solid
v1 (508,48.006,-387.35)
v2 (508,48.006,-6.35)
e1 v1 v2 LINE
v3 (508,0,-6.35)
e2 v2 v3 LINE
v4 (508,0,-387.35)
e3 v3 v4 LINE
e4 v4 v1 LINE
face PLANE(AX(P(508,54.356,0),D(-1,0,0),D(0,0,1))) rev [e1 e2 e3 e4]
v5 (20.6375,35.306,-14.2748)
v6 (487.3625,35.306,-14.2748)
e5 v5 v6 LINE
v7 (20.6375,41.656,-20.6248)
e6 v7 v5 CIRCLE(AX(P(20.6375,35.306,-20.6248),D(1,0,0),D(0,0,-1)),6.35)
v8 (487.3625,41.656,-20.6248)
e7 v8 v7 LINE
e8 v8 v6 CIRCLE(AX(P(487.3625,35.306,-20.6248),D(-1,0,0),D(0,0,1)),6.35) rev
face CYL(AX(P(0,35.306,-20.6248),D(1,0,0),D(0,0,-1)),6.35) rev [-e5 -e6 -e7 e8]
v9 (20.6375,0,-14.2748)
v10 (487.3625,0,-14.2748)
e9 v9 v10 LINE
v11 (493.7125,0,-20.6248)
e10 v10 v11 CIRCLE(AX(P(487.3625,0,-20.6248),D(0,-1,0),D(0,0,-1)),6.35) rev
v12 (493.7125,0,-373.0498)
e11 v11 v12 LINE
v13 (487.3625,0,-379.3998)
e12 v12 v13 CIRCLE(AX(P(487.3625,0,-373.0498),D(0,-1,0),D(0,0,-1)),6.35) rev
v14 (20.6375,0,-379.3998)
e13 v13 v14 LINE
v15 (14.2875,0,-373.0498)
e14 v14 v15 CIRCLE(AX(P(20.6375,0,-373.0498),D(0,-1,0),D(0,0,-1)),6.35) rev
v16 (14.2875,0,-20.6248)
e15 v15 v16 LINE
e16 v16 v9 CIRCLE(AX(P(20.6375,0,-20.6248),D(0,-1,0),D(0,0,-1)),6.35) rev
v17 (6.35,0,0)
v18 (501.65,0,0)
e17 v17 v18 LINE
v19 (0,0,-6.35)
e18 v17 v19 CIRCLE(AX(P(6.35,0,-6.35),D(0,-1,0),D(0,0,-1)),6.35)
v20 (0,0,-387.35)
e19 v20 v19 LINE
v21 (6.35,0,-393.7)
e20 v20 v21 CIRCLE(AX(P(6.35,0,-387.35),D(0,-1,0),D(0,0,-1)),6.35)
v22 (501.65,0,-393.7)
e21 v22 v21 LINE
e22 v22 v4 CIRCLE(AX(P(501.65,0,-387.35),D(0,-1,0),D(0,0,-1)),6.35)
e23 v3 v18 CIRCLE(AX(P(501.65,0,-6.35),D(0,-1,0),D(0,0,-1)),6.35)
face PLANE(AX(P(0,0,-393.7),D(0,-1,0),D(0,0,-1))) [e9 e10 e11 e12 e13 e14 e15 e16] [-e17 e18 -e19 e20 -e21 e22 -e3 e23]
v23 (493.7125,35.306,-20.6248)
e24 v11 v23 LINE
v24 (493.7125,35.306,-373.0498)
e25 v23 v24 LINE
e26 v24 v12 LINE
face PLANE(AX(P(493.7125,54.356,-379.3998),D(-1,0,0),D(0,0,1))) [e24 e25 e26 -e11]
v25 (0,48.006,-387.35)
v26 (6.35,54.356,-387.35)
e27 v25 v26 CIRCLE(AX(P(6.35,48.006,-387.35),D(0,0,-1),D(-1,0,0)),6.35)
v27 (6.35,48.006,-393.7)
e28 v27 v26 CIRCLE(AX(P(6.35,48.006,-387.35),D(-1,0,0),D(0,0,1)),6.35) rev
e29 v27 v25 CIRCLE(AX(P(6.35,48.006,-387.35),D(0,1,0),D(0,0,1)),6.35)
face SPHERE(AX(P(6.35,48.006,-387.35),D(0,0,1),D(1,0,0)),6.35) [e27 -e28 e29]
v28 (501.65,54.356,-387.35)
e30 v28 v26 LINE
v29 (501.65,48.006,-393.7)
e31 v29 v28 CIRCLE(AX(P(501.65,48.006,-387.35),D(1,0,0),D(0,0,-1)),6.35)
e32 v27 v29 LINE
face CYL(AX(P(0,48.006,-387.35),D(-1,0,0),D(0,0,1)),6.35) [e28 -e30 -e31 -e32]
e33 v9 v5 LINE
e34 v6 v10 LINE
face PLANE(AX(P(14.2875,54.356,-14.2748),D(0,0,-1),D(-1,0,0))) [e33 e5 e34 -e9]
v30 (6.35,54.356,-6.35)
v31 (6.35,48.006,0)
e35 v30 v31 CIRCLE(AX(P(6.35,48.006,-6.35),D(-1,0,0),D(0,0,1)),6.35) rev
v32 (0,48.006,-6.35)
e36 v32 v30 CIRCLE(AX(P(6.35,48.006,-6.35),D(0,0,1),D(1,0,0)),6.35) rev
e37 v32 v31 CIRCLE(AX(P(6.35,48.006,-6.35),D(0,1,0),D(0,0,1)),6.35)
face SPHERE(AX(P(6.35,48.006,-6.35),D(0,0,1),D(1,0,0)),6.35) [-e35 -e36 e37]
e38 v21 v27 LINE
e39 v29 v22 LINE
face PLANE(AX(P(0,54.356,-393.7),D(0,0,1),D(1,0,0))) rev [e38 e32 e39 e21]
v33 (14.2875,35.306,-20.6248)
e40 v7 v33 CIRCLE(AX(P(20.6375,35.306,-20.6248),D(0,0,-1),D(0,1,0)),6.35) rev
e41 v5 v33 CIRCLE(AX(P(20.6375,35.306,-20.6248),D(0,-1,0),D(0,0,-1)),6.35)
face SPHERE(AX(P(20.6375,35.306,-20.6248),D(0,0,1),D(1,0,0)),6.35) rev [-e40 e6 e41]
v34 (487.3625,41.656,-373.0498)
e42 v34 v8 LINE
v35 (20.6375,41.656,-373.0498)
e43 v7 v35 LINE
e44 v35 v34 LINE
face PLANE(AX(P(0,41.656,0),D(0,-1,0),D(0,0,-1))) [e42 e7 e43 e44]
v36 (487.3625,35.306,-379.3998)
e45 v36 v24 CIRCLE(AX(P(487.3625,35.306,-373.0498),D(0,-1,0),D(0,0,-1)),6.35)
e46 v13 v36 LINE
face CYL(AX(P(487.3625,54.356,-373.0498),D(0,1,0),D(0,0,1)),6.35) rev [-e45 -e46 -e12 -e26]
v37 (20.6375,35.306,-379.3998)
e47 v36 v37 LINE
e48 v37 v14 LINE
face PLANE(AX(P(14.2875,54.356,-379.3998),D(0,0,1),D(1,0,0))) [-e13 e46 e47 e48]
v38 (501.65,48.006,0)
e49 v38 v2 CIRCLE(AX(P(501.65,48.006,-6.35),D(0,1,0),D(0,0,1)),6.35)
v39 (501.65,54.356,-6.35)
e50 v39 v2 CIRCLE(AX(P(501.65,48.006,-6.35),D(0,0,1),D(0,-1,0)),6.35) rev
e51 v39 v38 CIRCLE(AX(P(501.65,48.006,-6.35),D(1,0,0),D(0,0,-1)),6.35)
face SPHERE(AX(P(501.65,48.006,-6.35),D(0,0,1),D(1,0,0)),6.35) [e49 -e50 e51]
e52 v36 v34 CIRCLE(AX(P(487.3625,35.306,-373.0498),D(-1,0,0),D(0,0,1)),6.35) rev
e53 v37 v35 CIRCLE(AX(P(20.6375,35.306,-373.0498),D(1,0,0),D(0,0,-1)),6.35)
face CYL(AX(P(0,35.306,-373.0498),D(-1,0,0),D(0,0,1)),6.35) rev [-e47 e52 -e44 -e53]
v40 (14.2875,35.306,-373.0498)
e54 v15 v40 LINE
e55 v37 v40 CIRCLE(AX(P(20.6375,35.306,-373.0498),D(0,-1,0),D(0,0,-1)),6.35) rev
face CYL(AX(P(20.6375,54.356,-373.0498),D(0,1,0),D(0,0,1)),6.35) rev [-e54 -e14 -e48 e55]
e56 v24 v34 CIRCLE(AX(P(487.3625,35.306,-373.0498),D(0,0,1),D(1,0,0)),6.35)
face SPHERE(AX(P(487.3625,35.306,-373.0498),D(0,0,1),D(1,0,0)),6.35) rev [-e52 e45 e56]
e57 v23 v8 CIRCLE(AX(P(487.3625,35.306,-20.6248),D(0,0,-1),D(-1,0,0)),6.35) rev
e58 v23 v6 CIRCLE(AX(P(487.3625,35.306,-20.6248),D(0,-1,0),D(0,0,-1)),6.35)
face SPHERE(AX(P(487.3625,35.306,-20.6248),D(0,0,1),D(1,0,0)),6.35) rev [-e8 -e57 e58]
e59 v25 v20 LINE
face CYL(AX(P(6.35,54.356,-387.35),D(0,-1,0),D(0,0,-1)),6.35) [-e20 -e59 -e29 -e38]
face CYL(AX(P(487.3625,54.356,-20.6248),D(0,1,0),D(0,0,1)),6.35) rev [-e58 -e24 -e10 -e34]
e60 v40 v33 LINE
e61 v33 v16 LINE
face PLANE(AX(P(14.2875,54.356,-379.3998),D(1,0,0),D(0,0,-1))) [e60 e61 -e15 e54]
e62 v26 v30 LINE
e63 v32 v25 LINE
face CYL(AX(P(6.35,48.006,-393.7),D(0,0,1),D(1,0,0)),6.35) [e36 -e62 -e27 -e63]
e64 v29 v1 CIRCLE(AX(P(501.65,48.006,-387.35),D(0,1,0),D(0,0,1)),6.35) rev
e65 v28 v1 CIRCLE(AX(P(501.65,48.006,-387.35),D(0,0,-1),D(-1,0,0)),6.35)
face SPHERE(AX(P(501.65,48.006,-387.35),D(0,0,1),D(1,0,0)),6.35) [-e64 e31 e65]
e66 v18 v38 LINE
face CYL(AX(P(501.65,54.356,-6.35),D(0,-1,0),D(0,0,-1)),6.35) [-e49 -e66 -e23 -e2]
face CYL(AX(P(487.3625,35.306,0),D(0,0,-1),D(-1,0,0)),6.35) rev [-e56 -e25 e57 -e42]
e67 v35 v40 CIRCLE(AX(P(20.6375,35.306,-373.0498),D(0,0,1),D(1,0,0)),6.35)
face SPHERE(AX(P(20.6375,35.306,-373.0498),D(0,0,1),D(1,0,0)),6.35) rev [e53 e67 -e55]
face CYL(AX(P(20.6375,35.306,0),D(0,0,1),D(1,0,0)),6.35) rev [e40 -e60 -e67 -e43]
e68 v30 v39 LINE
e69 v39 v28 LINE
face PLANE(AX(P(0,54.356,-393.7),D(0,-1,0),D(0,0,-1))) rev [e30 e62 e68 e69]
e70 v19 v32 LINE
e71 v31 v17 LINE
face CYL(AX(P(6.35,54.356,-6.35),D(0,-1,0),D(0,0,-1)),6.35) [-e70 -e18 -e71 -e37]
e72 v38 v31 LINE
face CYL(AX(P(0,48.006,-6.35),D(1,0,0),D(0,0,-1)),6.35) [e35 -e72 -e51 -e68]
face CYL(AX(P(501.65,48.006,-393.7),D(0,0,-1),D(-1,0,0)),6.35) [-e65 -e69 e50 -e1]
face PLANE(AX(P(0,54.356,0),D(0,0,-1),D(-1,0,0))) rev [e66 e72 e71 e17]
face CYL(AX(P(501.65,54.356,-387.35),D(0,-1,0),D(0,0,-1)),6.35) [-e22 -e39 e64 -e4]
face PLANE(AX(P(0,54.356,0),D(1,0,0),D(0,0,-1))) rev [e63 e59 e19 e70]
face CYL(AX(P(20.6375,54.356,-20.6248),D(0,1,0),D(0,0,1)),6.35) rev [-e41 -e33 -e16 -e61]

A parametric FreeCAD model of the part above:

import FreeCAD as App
import Part
import Sketcher
from FreeCAD import Vector
Q = App.Units.Quantity


def edges_at(feature, points):
    """Names of the edges that pass closest to the given points."""
    edges = feature.Shape.Edges
    near = lambda p: min(range(len(edges)), key=lambda i: edges[i].distToShape(Part.Vertex(*p))[0])
    return sorted({f"Edge{near(p) + 1}" for p in points})


def add_polygon(sketch, points):
    """Adds a closed chain of lines whose ends are joined by coincident constraints."""
    first, n = sketch.GeometryCount, len(points)
    for a, b in zip(points, points[1:] + points[:1]):
        sketch.addGeometry(Part.LineSegment(App.Vector(*a, 0), App.Vector(*b, 0)), False)
    for i in range(n):
        sketch.addConstraint(Sketcher.Constraint("Coincident", first + i, 2, first + (i + 1) % n, 1))

doc = App.newDocument("Part")
body = doc.addObject("PartDesign::Body", "Body")

# Sketch on XZ plane
sketch1 = doc.addObject("Sketcher::SketchObject", "Sketch")
body.addObject(sketch1)
sketch1.AttachmentSupport = (doc.XZ_Plane, [""])
sketch1.MapMode = "FlatFace"
add_polygon(sketch1, [(0, -394), (0, 0), (508, 0), (508, -394)])  # lines 0-3
add_polygon(sketch1, [(494, -14), (14, -14), (14, -379), (494, -379)])  # lines 4-7
sketch1.addConstraint([
    Sketcher.Constraint("Vertical", 0),
    Sketcher.Constraint("Horizontal", 1),
    Sketcher.Constraint("Vertical", 2),
    Sketcher.Constraint("Horizontal", 3),
    Sketcher.Constraint("Horizontal", 4),
    Sketcher.Constraint("Vertical", 5),
    Sketcher.Constraint("Horizontal", 6),
    Sketcher.Constraint("Vertical", 7),
    Sketcher.Constraint("Coincident", 0, 2, -1, 1),
    Sketcher.Constraint("DistanceX", 1, 1, 1, 2, Q("20 in")),
    Sketcher.Constraint("DistanceY", 0, 1, 0, 2, Q("15.5 in")),
    Sketcher.Constraint("DistanceX", 4, 2, 4, 1, Q("18.875 in")),
    Sketcher.Constraint("DistanceY", 5, 2, 5, 1, Q("14.375 in")),
    Sketcher.Constraint("DistanceX", -1, 1, 4, 2, Q("0.5625 in")),
    Sketcher.Constraint("DistanceY", 4, 2, -1, 1, Q("0.562 in")),
])
pad1 = doc.addObject("PartDesign::Pad", "Pad")
body.addObject(pad1)
pad1.Profile = sketch1
pad1.Length = Q("2.14 in")
pad1.Reversed = True

# Sketch on YZ plane
sketch2 = doc.addObject("Sketcher::SketchObject", "Sketch001")
body.addObject(sketch2)
sketch2.AttachmentSupport = (doc.YZ_Plane, [""])
sketch2.MapMode = "FlatFace"
sketch2.AttachmentOffset = App.Placement(Vector(0, 0, 20 * 25.4), App.Rotation())
add_polygon(sketch2, [(54, 0), (42, 0), (42, -394), (54, -394)])  # lines 0-3
sketch2.addConstraint([
    Sketcher.Constraint("Horizontal", 0),
    Sketcher.Constraint("Vertical", 1),
    Sketcher.Constraint("Horizontal", 2),
    Sketcher.Constraint("Vertical", 3),
    Sketcher.Constraint("PointOnObject", 0, 2, -1),
    Sketcher.Constraint("DistanceX", 0, 2, 0, 1, Q("0.5 in")),
    Sketcher.Constraint("DistanceY", 1, 2, 1, 1, Q("15.5 in")),
    Sketcher.Constraint("DistanceX", -1, 1, 0, 2, Q("1.64 in")),
])
pad2 = doc.addObject("PartDesign::Pad", "Pad001")
body.addObject(pad2)
pad2.Profile = sketch2
pad2.Length = Q("20 in")
pad2.Reversed = True
doc.recompute()

fillet = doc.addObject("PartDesign::Fillet", "Fillet")
body.addObject(fillet)
fillet.Base = (pad2, edges_at(pad2, [
    (508, 54.356, -196.85),
    (254, 54.356, -393.7),
    (0, 54.356, -196.85),
    (254, 54.356, 0),
    (0, 27.178, -393.7),
    (508, 27.178, -393.7),
    (508, 27.178, 0),
    (0, 27.178, 0),
]))
fillet.Radius = Q("0.25 in")
doc.recompute()

fillet2 = doc.addObject("PartDesign::Fillet", "Fillet001")
body.addObject(fillet2)
fillet2.Base = (fillet, edges_at(fillet, [
    (493.712, 20.828, -379.4),
    (14.287, 20.828, -379.4),
    (254, 41.656, -379.4),
    (493.712, 20.828, -14.275),
    (14.287, 20.828, -14.275),
    (254, 41.656, -14.275),
    (14.287, 41.656, -196.837),
    (493.712, 41.656, -196.837),
]))
fillet2.Radius = Q("0.25 in")

doc.recompute()
